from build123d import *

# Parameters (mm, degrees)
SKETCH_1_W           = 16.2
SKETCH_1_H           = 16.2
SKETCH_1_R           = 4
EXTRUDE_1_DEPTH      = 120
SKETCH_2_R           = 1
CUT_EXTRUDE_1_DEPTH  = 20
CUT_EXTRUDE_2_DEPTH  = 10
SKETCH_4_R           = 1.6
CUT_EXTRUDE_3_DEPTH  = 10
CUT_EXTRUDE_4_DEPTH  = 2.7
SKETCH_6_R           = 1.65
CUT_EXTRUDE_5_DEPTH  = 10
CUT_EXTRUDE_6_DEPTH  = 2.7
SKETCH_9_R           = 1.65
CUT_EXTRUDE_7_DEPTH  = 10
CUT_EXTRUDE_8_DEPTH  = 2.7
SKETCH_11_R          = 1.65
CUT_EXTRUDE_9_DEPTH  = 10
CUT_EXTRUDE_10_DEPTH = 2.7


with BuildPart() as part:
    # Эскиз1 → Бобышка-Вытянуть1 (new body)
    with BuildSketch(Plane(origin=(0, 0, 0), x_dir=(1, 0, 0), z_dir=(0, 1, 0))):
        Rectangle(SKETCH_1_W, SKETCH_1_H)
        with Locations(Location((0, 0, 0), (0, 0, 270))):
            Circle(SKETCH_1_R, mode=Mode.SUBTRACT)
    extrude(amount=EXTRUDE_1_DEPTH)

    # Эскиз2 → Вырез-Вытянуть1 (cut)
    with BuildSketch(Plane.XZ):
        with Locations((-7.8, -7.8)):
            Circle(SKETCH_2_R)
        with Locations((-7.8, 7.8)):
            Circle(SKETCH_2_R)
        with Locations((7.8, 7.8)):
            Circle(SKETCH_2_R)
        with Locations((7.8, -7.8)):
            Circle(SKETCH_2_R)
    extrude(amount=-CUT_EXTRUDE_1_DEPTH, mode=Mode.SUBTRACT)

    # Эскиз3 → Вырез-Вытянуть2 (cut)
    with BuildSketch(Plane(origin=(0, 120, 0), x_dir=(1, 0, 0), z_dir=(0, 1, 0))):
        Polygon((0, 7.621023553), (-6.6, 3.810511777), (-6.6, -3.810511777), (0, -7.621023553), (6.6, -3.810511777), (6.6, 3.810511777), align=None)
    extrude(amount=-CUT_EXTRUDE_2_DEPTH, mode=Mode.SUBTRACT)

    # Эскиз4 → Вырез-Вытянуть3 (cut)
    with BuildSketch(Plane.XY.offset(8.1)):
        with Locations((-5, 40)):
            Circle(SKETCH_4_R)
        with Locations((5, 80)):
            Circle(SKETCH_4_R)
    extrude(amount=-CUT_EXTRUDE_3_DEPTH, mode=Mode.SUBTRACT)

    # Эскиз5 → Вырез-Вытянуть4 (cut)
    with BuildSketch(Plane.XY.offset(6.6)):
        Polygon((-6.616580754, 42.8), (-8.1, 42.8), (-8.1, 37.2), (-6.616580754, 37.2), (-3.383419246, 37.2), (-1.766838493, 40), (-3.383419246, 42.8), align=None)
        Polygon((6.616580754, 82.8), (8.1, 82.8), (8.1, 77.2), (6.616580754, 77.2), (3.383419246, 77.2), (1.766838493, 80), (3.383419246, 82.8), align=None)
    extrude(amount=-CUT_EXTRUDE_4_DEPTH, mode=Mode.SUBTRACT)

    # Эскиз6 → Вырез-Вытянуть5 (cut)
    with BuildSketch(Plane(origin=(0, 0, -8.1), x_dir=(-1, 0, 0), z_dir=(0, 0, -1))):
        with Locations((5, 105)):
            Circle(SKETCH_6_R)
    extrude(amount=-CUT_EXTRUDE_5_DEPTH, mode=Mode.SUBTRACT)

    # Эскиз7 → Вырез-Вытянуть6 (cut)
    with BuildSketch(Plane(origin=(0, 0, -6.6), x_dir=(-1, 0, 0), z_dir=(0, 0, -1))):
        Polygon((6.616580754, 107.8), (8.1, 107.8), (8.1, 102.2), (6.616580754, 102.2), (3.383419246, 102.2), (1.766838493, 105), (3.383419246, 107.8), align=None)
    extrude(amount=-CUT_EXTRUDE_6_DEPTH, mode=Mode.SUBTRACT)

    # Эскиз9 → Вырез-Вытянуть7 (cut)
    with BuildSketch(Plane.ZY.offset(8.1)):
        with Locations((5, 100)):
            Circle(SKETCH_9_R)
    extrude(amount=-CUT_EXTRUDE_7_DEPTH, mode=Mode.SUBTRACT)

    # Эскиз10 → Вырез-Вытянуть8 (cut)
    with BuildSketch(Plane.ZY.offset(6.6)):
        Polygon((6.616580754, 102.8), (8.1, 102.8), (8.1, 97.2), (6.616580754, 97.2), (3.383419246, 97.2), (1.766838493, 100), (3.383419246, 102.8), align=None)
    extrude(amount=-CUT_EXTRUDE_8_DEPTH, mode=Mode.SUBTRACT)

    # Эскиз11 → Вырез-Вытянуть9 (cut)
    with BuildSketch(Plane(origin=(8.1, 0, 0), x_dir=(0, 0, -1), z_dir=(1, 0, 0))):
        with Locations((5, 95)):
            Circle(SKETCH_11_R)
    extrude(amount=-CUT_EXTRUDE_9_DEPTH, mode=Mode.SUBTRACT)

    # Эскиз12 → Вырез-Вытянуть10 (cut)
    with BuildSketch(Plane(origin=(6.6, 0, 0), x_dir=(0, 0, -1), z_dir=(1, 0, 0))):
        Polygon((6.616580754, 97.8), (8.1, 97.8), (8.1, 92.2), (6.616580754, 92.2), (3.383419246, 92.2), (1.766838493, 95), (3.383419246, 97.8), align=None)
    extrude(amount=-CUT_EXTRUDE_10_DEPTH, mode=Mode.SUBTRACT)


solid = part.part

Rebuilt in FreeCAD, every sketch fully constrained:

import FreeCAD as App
import Part
import Sketcher
from FreeCAD import Vector
Q = App.Units.Quantity


def add_polygon(sketch, points):
    """Adds a closed chain of lines whose ends are joined by coincident constraints."""
    first, n = sketch.GeometryCount, len(points)
    for a, b in zip(points, points[1:] + points[:1]):
        sketch.addGeometry(Part.LineSegment(App.Vector(*a, 0), App.Vector(*b, 0)), False)
    for i in range(n):
        sketch.addConstraint(Sketcher.Constraint("Coincident", first + i, 2, first + (i + 1) % n, 1))

doc = App.newDocument("Part")
body = doc.addObject("PartDesign::Body", "Body")

# Sketch on XZ plane
sketch1 = body.newObject("Sketcher::SketchObject", "Sketch")
sketch1.AttachmentSupport = (doc.getObject("XZ_Plane"), [""])
sketch1.MapMode = "FlatFace"
add_polygon(sketch1, [(-8.1, -8.1), (-8.1, 8.1), (8.1, 8.1), (8.1, -8.1)])  # lines 0-3
sketch1.addGeometry(Part.Circle(Vector(0, 0, 0), Vector(0, 0, 1), 4), False)  # 4
sketch1.addConstraint([
    Sketcher.Constraint("Vertical", 0),
    Sketcher.Constraint("Horizontal", 1),
    Sketcher.Constraint("Vertical", 2),
    Sketcher.Constraint("Horizontal", 3),
    Sketcher.Constraint("Coincident", 4, 3, -1, 1),
    Sketcher.Constraint("Symmetric", 0, 2, 2, 2, -1, 1),
    Sketcher.Constraint("Equal", 3, 0),
    Sketcher.Constraint("Diameter", 4, Q("8 mm")),
    Sketcher.Constraint("DistanceX", 1, 1, 1, 2, Q("16.2 mm")),
])
pad1 = body.newObject("PartDesign::Pad", "Pad")
pad1.Profile = sketch1
pad1.Length = 120
pad1.Reversed = True

# Sketch on XZ plane
sketch2 = body.newObject("Sketcher::SketchObject", "Sketch001")
sketch2.AttachmentSupport = (doc.getObject("XZ_Plane"), [""])
sketch2.MapMode = "FlatFace"
sketch2.addGeometry([
    Part.Circle(Vector(-7.8, -7.8, 0), Vector(0, 0, 1), 1),
    Part.Circle(Vector(-7.8, 7.8, 0), Vector(0, 0, 1), 1),
    Part.Circle(Vector(7.8, 7.8, 0), Vector(0, 0, 1), 1),
    Part.Circle(Vector(7.8, -7.8, 0), Vector(0, 0, 1), 1),
], False)
sketch2.addConstraint([
    Sketcher.Constraint("Equal", 0, 1),
    Sketcher.Constraint("Equal", 1, 2),
    Sketcher.Constraint("Equal", 2, 3),
    Sketcher.Constraint("Symmetric", 0, 3, 2, 3, -1, 1),
    Sketcher.Constraint("Symmetric", 1, 3, 3, 3, -1, 1),
    Sketcher.Constraint("Symmetric", 1, 3, 2, 3, -2),
    Sketcher.Constraint("Diameter", 0, Q("2 mm")),
    Sketcher.Constraint("DistanceX", 0, 3, -1, 1, Q("7.8 mm")),
    Sketcher.Constraint("DistanceY", 0, 3, -1, 1, Q("7.8 mm")),
])
pocket1 = body.newObject("PartDesign::Pocket", "Pocket")
pocket1.Profile = sketch2
pocket1.Length = 20

# Sketch on XZ plane
sketch3 = body.newObject("Sketcher::SketchObject", "Sketch002")
sketch3.AttachmentSupport = (doc.getObject("XZ_Plane"), [""])
sketch3.MapMode = "FlatFace"
sketch3.AttachmentOffset = App.Placement(Vector(0, 0, -120), App.Rotation())
add_polygon(sketch3, [(0, -7.621024), (-6.6, -3.810512), (-6.6, 3.810512), (0, 7.621024), (6.6, 3.810512), (6.6, -3.810512)])  # lines 0-5
sketch3.addConstraint([
    Sketcher.Constraint("Vertical", 1),
    Sketcher.Constraint("Vertical", 4),
    Sketcher.Constraint("Symmetric", 0, 2, 3, 2, -1, 1),
    Sketcher.Constraint("Symmetric", 2, 2, 5, 2, -1, 1),
    Sketcher.Constraint("PointOnObject", 2, 2, -2),
    Sketcher.Constraint("Parallel", 2, 5),
    Sketcher.Constraint("Horizontal", 1, 2, 3, 2),
    Sketcher.Constraint("Angle", 0, Q("150 deg")),
    Sketcher.Constraint("DistanceX", 0, 2, -1, 1, Q("6.6 mm")),
    Sketcher.Constraint("DistanceY", 1, 1, 1, 2, Q("7.621024 mm")),
])
pocket2 = body.newObject("PartDesign::Pocket", "Pocket001")
pocket2.Profile = sketch3
pocket2.Length = 10
pocket2.Reversed = True

# Sketch on XY plane
sketch4 = body.newObject("Sketcher::SketchObject", "Sketch003")
sketch4.AttachmentSupport = (doc.getObject("XY_Plane"), [""])
sketch4.MapMode = "FlatFace"
sketch4.AttachmentOffset = App.Placement(Vector(0, 0, 8.1), App.Rotation())
sketch4.addGeometry([
    Part.Circle(Vector(-5, 40, 0), Vector(0, 0, 1), 1.6),
    Part.Circle(Vector(5, 80, 0), Vector(0, 0, 1), 1.6),
], False)
sketch4.addConstraint([
    Sketcher.Constraint("Equal", 0, 1),
    Sketcher.Constraint("Diameter", 0, Q("3.2 mm")),
    Sketcher.Constraint("DistanceX", 0, 3, -1, 1, Q("5 mm")),
    Sketcher.Constraint("DistanceY", -1, 1, 0, 3, Q("40 mm")),
    Sketcher.Constraint("DistanceX", -1, 1, 1, 3, Q("5 mm")),
    Sketcher.Constraint("DistanceY", -1, 1, 1, 3, Q("80 mm")),
])
pocket3 = body.newObject("PartDesign::Pocket", "Pocket002")
pocket3.Profile = sketch4
pocket3.Length = 10

# Sketch on XY plane
sketch5 = body.newObject("Sketcher::SketchObject", "Sketch004")
sketch5.AttachmentSupport = (doc.getObject("XY_Plane"), [""])
sketch5.MapMode = "FlatFace"
sketch5.AttachmentOffset = App.Placement(Vector(0, 0, 6.6), App.Rotation())
add_polygon(sketch5, [(-8.1, 42.8), (-8.1, 37.2), (-3.383419, 37.2), (-1.766838, 40), (-3.383419, 42.8)])  # lines 0-4
add_polygon(sketch5, [(8.1, 82.8), (3.383419, 82.8), (1.766838, 80), (3.383419, 77.2), (8.1, 77.2)])  # lines 5-9
sketch5.addConstraint([
    Sketcher.Constraint("Vertical", 0),
    Sketcher.Constraint("Horizontal", 1),
    Sketcher.Constraint("Horizontal", 4),
    Sketcher.Constraint("Horizontal", 5),
    Sketcher.Constraint("Horizontal", 8),
    Sketcher.Constraint("Vertical", 9),
    Sketcher.Constraint("Parallel", 2, 6),
    Sketcher.Constraint("Parallel", 3, 7),
    Sketcher.Constraint("Vertical", 1, 2, 3, 2),
    Sketcher.Constraint("Vertical", 5, 2, 7, 2),
    Sketcher.Constraint("Equal", 4, 5),
    Sketcher.Constraint("Equal", 0, 9),
    Sketcher.Constraint("Equal", 2, 3),
    Sketcher.Constraint("Angle", 2, Q("60 deg")),
    Sketcher.Constraint("DistanceY", 0, 2, 0, 1, Q("5.6 mm")),
    Sketcher.Constraint("DistanceY", -1, 1, 2, 2, Q("40 mm")),
    Sketcher.Constraint("DistanceY", -1, 1, 6, 2, Q("80 mm")),
    Sketcher.Constraint("DistanceX", 0, 2, -1, 1, Q("8.1 mm")),
    Sketcher.Constraint("DistanceX", -1, 1, 8, 2, Q("8.1 mm")),
    Sketcher.Constraint("DistanceX", 1, 1, 1, 2, Q("4.716581 mm")),
])
pocket4 = body.newObject("PartDesign::Pocket", "Pocket003")
pocket4.Profile = sketch5
pocket4.Length = 2.7

# Sketch on XY plane
sketch6 = body.newObject("Sketcher::SketchObject", "Sketch005")
sketch6.AttachmentSupport = (doc.getObject("XY_Plane"), [""])
sketch6.MapMode = "FlatFace"
sketch6.AttachmentOffset = App.Placement(Vector(0, 0, -8.1), App.Rotation())
sketch6.addGeometry(Part.Circle(Vector(-5, 105, 0), Vector(0, 0, 1), 1.65), False)
sketch6.addConstraint([
    Sketcher.Constraint("Diameter", 0, Q("3.3 mm")),
    Sketcher.Constraint("DistanceX", 0, 3, -1, 1, Q("5 mm")),
    Sketcher.Constraint("DistanceY", -1, 1, 0, 3, Q("105 mm")),
])
pocket5 = body.newObject("PartDesign::Pocket", "Pocket004")
pocket5.Profile = sketch6
pocket5.Length = 10
pocket5.Reversed = True

# Sketch on XY plane
sketch7 = body.newObject("Sketcher::SketchObject", "Sketch006")
sketch7.AttachmentSupport = (doc.getObject("XY_Plane"), [""])
sketch7.MapMode = "FlatFace"
sketch7.AttachmentOffset = App.Placement(Vector(0, 0, -6.6), App.Rotation())
add_polygon(sketch7, [(-8.1, 107.8), (-3.383419, 107.8), (-1.766838, 105), (-3.383419, 102.2), (-8.1, 102.2)])  # lines 0-4
sketch7.addConstraint([
    Sketcher.Constraint("Horizontal", 0),
    Sketcher.Constraint("Horizontal", 3),
    Sketcher.Constraint("Vertical", 4),
    Sketcher.Constraint("Vertical", 0, 2, 2, 2),
    Sketcher.Constraint("Equal", 1, 2),
    Sketcher.Constraint("Angle", 1, Q("-60 deg")),
    Sketcher.Constraint("DistanceY", 4, 1, 4, 2, Q("5.6 mm")),
    Sketcher.Constraint("DistanceY", -1, 1, 1, 2, Q("105 mm")),
    Sketcher.Constraint("DistanceX", 3, 2, -1, 1, Q("8.1 mm")),
    Sketcher.Constraint("DistanceX", 0, 1, 0, 2, Q("4.716581 mm")),
])
pocket6 = body.newObject("PartDesign::Pocket", "Pocket005")
pocket6.Profile = sketch7
pocket6.Length = 2.7
pocket6.Reversed = True

# Sketch on YZ plane
sketch8 = body.newObject("Sketcher::SketchObject", "Sketch007")
sketch8.AttachmentSupport = (doc.getObject("YZ_Plane"), [""])
sketch8.MapMode = "FlatFace"
sketch8.AttachmentOffset = App.Placement(Vector(0, 0, -8.1), App.Rotation())
sketch8.addGeometry(Part.Circle(Vector(100, 5, 0), Vector(0, 0, 1), 1.65), False)
sketch8.addConstraint([
    Sketcher.Constraint("Diameter", 0, Q("3.3 mm")),
    Sketcher.Constraint("DistanceX", -1, 1, 0, 3, Q("100 mm")),
    Sketcher.Constraint("DistanceY", -1, 1, 0, 3, Q("5 mm")),
])
pocket7 = body.newObject("PartDesign::Pocket", "Pocket006")
pocket7.Profile = sketch8
pocket7.Length = 10
pocket7.Reversed = True

# Sketch on YZ plane
sketch9 = body.newObject("Sketcher::SketchObject", "Sketch008")
sketch9.AttachmentSupport = (doc.getObject("YZ_Plane"), [""])
sketch9.MapMode = "FlatFace"
sketch9.AttachmentOffset = App.Placement(Vector(0, 0, -6.6), App.Rotation())
add_polygon(sketch9, [(102.8, 8.1), (102.8, 3.383419), (100, 1.766838), (97.2, 3.383419), (97.2, 8.1)])  # lines 0-4
sketch9.addConstraint([
    Sketcher.Constraint("Vertical", 0),
    Sketcher.Constraint("Vertical", 3),
    Sketcher.Constraint("Horizontal", 4),
    Sketcher.Constraint("Horizontal", 0, 2, 2, 2),
    Sketcher.Constraint("Equal", 1, 2),
    Sketcher.Constraint("Angle", 1, Q("-150 deg")),
    Sketcher.Constraint("DistanceX", 4, 1, 4, 2, Q("5.6 mm")),
    Sketcher.Constraint("DistanceX", -1, 1, 1, 2, Q("100 mm")),
    Sketcher.Constraint("DistanceY", -1, 1, 3, 2, Q("8.1 mm")),
    Sketcher.Constraint("DistanceY", 0, 2, 0, 1, Q("4.716581 mm")),
])
pocket8 = body.newObject("PartDesign::Pocket", "Pocket007")
pocket8.Profile = sketch9
pocket8.Length = 2.7
pocket8.Reversed = True

# Sketch on YZ plane
sketch10 = body.newObject("Sketcher::SketchObject", "Sketch009")
sketch10.AttachmentSupport = (doc.getObject("YZ_Plane"), [""])
sketch10.MapMode = "FlatFace"
sketch10.AttachmentOffset = App.Placement(Vector(0, 0, 8.1), App.Rotation())
sketch10.addGeometry(Part.Circle(Vector(95, -5, 0), Vector(0, 0, 1), 1.65), False)
sketch10.addConstraint([
    Sketcher.Constraint("Diameter", 0, Q("3.3 mm")),
    Sketcher.Constraint("DistanceX", -1, 1, 0, 3, Q("95 mm")),
    Sketcher.Constraint("DistanceY", 0, 3, -1, 1, Q("5 mm")),
])
pocket9 = body.newObject("PartDesign::Pocket", "Pocket008")
pocket9.Profile = sketch10
pocket9.Length = 10

# Sketch on YZ plane
sketch11 = body.newObject("Sketcher::SketchObject", "Sketch010")
sketch11.AttachmentSupport = (doc.getObject("YZ_Plane"), [""])
sketch11.MapMode = "FlatFace"
sketch11.AttachmentOffset = App.Placement(Vector(0, 0, 6.6), App.Rotation())
add_polygon(sketch11, [(97.8, -8.1), (97.8, -3.383419), (95, -1.766838), (92.2, -3.383419), (92.2, -8.1)])  # lines 0-4
sketch11.addConstraint([
    Sketcher.Constraint("Vertical", 0),
    Sketcher.Constraint("Vertical", 3),
    Sketcher.Constraint("Horizontal", 4),
    Sketcher.Constraint("Horizontal", 0, 2, 2, 2),
    Sketcher.Constraint("Equal", 1, 2),
    Sketcher.Constraint("Angle", 1, Q("150 deg")),
    Sketcher.Constraint("DistanceX", 4, 1, 4, 2, Q("5.6 mm")),
    Sketcher.Constraint("DistanceX", -1, 1, 1, 2, Q("95 mm")),
    Sketcher.Constraint("DistanceY", 3, 2, -1, 1, Q("8.1 mm")),
    Sketcher.Constraint("DistanceY", 0, 1, 0, 2, Q("4.716581 mm")),
])
pocket10 = body.newObject("PartDesign::Pocket", "Pocket009")
pocket10.Profile = sketch11
pocket10.Length = 2.7

doc.recompute()
